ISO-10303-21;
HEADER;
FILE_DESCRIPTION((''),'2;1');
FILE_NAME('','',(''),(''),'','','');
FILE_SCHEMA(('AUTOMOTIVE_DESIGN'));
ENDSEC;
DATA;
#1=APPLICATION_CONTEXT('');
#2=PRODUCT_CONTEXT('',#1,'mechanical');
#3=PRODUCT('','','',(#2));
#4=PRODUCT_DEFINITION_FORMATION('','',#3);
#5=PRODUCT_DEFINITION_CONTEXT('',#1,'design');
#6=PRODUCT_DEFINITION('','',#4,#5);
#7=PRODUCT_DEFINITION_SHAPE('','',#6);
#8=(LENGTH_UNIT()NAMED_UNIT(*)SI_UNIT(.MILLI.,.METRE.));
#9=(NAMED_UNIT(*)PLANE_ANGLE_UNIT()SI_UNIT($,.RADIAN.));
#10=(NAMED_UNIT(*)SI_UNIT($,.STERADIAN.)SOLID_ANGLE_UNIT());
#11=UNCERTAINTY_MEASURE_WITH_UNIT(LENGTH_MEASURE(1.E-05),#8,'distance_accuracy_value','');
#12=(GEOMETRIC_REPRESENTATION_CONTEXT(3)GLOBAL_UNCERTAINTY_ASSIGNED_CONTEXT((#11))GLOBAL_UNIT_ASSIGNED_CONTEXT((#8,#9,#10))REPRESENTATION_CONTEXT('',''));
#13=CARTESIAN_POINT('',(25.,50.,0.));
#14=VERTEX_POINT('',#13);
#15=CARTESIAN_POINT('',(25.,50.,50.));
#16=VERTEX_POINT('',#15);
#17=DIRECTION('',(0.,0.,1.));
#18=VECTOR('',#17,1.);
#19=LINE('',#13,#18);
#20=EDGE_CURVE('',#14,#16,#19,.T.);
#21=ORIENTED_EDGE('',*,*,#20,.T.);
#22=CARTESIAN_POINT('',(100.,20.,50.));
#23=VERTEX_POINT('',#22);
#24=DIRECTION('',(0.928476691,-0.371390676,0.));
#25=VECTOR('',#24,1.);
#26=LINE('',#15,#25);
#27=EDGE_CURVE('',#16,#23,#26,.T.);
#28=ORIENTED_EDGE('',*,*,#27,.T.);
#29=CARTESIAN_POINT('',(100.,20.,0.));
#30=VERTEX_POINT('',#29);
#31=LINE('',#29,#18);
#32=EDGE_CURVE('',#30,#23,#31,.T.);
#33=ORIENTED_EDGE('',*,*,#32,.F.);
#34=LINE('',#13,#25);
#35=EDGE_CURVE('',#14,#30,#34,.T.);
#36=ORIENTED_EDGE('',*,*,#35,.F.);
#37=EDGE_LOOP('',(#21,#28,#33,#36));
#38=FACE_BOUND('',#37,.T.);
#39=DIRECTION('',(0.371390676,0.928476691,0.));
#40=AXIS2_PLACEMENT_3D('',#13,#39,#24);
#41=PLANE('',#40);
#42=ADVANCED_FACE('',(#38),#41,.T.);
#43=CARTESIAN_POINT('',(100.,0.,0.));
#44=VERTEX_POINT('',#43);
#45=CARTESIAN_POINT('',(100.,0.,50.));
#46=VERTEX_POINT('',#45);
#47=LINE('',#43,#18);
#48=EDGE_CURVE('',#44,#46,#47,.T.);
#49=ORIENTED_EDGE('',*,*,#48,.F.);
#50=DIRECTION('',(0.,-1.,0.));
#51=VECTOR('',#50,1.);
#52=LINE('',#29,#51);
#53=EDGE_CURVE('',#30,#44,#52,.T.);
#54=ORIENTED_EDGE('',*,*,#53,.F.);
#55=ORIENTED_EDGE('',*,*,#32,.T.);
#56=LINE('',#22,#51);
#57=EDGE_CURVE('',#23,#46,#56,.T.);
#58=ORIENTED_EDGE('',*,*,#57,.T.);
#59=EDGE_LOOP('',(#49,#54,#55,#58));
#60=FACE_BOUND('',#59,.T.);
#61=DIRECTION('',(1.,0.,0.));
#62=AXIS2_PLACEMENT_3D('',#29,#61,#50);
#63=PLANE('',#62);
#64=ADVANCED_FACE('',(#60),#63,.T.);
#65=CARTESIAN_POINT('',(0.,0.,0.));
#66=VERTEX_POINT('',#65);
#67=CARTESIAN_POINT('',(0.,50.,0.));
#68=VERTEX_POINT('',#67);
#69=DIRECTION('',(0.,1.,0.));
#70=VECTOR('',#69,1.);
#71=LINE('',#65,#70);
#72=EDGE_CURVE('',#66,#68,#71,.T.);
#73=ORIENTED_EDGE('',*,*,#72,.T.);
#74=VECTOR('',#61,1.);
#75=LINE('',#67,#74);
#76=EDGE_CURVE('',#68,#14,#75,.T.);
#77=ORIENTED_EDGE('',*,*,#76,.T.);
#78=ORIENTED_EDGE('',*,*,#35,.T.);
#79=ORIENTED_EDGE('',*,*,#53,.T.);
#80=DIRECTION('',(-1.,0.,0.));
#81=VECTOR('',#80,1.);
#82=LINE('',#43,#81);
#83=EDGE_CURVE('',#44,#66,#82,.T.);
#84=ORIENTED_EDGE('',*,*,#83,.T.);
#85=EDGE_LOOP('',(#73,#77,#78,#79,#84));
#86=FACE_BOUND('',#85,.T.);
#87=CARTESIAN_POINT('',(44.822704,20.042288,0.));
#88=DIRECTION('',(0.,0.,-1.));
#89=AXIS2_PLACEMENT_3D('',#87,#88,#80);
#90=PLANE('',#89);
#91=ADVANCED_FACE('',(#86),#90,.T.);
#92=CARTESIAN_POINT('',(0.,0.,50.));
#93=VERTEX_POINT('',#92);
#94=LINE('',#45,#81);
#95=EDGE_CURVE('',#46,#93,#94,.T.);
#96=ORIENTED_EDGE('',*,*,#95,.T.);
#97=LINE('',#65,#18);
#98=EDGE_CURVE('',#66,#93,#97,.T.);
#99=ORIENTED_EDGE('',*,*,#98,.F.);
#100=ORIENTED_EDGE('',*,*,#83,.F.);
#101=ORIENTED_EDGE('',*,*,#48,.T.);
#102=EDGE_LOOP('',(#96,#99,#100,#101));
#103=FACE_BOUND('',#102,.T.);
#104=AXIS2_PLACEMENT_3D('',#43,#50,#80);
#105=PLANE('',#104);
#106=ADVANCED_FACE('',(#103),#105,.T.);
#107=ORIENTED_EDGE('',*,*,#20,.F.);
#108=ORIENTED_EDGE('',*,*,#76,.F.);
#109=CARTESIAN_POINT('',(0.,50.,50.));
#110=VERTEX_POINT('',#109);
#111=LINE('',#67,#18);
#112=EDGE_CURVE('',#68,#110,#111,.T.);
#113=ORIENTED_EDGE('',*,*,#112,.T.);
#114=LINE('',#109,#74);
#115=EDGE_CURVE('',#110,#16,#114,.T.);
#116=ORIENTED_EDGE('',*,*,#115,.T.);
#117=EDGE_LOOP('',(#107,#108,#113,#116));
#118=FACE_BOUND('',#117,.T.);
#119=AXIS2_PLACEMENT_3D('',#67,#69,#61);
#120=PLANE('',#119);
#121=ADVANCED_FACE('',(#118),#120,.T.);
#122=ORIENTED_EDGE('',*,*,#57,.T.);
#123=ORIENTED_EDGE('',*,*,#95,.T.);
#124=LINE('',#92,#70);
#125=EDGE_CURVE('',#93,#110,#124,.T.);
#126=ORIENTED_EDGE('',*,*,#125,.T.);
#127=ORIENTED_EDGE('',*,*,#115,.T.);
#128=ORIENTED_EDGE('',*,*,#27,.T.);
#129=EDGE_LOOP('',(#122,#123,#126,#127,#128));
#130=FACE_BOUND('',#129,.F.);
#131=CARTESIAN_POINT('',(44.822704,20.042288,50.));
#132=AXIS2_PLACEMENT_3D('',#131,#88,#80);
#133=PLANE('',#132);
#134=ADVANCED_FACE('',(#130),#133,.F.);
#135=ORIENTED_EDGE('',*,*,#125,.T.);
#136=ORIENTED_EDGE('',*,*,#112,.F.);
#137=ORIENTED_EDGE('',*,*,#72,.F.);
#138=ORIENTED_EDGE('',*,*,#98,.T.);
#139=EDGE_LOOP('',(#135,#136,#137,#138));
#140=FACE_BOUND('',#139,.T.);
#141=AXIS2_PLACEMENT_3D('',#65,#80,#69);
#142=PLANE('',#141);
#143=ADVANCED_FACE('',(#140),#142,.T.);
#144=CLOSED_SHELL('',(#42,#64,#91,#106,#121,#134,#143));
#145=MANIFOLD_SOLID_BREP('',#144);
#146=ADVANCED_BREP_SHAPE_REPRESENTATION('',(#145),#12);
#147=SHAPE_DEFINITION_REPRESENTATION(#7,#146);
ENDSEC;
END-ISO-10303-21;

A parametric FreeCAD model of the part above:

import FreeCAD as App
import Part
import Sketcher
Q = App.Units.Quantity


def add_polygon(sketch, points):
    """Adds a closed chain of lines whose ends are joined by coincident constraints."""
    first, n = sketch.GeometryCount, len(points)
    for a, b in zip(points, points[1:] + points[:1]):
        sketch.addGeometry(Part.LineSegment(App.Vector(*a, 0), App.Vector(*b, 0)), False)
    for i in range(n):
        sketch.addConstraint(Sketcher.Constraint("Coincident", first + i, 2, first + (i + 1) % n, 1))

doc = App.newDocument("Part")
body = doc.addObject("PartDesign::Body", "Body")

# Sketch on XY plane
sketch1 = body.newObject("Sketcher::SketchObject", "Sketch")
sketch1.AttachmentSupport = (doc.getObject("XY_Plane"), [""])
sketch1.MapMode = "FlatFace"
add_polygon(sketch1, [(0, 50), (0, 0), (100, 0), (100, 20), (25, 50)])  # lines 0-4
sketch1.addConstraint([
    Sketcher.Constraint("Vertical", 0),
    Sketcher.Constraint("Horizontal", 1),
    Sketcher.Constraint("Vertical", 2),
    Sketcher.Constraint("Horizontal", 4),
    Sketcher.Constraint("Coincident", 0, 2, -1, 1),
    Sketcher.Constraint("DistanceX", 1, 1, 1, 2, Q("100 mm")),
    Sketcher.Constraint("DistanceX", 4, 2, 4, 1, Q("25 mm")),
    Sketcher.Constraint("DistanceY", 0, 2, 0, 1, Q("50 mm")),
    Sketcher.Constraint("DistanceY", 2, 1, 2, 2, Q("20 mm")),
])
pad1 = body.newObject("PartDesign::Pad", "Pad")
pad1.Profile = sketch1
pad1.Length = 50

doc.recompute()
